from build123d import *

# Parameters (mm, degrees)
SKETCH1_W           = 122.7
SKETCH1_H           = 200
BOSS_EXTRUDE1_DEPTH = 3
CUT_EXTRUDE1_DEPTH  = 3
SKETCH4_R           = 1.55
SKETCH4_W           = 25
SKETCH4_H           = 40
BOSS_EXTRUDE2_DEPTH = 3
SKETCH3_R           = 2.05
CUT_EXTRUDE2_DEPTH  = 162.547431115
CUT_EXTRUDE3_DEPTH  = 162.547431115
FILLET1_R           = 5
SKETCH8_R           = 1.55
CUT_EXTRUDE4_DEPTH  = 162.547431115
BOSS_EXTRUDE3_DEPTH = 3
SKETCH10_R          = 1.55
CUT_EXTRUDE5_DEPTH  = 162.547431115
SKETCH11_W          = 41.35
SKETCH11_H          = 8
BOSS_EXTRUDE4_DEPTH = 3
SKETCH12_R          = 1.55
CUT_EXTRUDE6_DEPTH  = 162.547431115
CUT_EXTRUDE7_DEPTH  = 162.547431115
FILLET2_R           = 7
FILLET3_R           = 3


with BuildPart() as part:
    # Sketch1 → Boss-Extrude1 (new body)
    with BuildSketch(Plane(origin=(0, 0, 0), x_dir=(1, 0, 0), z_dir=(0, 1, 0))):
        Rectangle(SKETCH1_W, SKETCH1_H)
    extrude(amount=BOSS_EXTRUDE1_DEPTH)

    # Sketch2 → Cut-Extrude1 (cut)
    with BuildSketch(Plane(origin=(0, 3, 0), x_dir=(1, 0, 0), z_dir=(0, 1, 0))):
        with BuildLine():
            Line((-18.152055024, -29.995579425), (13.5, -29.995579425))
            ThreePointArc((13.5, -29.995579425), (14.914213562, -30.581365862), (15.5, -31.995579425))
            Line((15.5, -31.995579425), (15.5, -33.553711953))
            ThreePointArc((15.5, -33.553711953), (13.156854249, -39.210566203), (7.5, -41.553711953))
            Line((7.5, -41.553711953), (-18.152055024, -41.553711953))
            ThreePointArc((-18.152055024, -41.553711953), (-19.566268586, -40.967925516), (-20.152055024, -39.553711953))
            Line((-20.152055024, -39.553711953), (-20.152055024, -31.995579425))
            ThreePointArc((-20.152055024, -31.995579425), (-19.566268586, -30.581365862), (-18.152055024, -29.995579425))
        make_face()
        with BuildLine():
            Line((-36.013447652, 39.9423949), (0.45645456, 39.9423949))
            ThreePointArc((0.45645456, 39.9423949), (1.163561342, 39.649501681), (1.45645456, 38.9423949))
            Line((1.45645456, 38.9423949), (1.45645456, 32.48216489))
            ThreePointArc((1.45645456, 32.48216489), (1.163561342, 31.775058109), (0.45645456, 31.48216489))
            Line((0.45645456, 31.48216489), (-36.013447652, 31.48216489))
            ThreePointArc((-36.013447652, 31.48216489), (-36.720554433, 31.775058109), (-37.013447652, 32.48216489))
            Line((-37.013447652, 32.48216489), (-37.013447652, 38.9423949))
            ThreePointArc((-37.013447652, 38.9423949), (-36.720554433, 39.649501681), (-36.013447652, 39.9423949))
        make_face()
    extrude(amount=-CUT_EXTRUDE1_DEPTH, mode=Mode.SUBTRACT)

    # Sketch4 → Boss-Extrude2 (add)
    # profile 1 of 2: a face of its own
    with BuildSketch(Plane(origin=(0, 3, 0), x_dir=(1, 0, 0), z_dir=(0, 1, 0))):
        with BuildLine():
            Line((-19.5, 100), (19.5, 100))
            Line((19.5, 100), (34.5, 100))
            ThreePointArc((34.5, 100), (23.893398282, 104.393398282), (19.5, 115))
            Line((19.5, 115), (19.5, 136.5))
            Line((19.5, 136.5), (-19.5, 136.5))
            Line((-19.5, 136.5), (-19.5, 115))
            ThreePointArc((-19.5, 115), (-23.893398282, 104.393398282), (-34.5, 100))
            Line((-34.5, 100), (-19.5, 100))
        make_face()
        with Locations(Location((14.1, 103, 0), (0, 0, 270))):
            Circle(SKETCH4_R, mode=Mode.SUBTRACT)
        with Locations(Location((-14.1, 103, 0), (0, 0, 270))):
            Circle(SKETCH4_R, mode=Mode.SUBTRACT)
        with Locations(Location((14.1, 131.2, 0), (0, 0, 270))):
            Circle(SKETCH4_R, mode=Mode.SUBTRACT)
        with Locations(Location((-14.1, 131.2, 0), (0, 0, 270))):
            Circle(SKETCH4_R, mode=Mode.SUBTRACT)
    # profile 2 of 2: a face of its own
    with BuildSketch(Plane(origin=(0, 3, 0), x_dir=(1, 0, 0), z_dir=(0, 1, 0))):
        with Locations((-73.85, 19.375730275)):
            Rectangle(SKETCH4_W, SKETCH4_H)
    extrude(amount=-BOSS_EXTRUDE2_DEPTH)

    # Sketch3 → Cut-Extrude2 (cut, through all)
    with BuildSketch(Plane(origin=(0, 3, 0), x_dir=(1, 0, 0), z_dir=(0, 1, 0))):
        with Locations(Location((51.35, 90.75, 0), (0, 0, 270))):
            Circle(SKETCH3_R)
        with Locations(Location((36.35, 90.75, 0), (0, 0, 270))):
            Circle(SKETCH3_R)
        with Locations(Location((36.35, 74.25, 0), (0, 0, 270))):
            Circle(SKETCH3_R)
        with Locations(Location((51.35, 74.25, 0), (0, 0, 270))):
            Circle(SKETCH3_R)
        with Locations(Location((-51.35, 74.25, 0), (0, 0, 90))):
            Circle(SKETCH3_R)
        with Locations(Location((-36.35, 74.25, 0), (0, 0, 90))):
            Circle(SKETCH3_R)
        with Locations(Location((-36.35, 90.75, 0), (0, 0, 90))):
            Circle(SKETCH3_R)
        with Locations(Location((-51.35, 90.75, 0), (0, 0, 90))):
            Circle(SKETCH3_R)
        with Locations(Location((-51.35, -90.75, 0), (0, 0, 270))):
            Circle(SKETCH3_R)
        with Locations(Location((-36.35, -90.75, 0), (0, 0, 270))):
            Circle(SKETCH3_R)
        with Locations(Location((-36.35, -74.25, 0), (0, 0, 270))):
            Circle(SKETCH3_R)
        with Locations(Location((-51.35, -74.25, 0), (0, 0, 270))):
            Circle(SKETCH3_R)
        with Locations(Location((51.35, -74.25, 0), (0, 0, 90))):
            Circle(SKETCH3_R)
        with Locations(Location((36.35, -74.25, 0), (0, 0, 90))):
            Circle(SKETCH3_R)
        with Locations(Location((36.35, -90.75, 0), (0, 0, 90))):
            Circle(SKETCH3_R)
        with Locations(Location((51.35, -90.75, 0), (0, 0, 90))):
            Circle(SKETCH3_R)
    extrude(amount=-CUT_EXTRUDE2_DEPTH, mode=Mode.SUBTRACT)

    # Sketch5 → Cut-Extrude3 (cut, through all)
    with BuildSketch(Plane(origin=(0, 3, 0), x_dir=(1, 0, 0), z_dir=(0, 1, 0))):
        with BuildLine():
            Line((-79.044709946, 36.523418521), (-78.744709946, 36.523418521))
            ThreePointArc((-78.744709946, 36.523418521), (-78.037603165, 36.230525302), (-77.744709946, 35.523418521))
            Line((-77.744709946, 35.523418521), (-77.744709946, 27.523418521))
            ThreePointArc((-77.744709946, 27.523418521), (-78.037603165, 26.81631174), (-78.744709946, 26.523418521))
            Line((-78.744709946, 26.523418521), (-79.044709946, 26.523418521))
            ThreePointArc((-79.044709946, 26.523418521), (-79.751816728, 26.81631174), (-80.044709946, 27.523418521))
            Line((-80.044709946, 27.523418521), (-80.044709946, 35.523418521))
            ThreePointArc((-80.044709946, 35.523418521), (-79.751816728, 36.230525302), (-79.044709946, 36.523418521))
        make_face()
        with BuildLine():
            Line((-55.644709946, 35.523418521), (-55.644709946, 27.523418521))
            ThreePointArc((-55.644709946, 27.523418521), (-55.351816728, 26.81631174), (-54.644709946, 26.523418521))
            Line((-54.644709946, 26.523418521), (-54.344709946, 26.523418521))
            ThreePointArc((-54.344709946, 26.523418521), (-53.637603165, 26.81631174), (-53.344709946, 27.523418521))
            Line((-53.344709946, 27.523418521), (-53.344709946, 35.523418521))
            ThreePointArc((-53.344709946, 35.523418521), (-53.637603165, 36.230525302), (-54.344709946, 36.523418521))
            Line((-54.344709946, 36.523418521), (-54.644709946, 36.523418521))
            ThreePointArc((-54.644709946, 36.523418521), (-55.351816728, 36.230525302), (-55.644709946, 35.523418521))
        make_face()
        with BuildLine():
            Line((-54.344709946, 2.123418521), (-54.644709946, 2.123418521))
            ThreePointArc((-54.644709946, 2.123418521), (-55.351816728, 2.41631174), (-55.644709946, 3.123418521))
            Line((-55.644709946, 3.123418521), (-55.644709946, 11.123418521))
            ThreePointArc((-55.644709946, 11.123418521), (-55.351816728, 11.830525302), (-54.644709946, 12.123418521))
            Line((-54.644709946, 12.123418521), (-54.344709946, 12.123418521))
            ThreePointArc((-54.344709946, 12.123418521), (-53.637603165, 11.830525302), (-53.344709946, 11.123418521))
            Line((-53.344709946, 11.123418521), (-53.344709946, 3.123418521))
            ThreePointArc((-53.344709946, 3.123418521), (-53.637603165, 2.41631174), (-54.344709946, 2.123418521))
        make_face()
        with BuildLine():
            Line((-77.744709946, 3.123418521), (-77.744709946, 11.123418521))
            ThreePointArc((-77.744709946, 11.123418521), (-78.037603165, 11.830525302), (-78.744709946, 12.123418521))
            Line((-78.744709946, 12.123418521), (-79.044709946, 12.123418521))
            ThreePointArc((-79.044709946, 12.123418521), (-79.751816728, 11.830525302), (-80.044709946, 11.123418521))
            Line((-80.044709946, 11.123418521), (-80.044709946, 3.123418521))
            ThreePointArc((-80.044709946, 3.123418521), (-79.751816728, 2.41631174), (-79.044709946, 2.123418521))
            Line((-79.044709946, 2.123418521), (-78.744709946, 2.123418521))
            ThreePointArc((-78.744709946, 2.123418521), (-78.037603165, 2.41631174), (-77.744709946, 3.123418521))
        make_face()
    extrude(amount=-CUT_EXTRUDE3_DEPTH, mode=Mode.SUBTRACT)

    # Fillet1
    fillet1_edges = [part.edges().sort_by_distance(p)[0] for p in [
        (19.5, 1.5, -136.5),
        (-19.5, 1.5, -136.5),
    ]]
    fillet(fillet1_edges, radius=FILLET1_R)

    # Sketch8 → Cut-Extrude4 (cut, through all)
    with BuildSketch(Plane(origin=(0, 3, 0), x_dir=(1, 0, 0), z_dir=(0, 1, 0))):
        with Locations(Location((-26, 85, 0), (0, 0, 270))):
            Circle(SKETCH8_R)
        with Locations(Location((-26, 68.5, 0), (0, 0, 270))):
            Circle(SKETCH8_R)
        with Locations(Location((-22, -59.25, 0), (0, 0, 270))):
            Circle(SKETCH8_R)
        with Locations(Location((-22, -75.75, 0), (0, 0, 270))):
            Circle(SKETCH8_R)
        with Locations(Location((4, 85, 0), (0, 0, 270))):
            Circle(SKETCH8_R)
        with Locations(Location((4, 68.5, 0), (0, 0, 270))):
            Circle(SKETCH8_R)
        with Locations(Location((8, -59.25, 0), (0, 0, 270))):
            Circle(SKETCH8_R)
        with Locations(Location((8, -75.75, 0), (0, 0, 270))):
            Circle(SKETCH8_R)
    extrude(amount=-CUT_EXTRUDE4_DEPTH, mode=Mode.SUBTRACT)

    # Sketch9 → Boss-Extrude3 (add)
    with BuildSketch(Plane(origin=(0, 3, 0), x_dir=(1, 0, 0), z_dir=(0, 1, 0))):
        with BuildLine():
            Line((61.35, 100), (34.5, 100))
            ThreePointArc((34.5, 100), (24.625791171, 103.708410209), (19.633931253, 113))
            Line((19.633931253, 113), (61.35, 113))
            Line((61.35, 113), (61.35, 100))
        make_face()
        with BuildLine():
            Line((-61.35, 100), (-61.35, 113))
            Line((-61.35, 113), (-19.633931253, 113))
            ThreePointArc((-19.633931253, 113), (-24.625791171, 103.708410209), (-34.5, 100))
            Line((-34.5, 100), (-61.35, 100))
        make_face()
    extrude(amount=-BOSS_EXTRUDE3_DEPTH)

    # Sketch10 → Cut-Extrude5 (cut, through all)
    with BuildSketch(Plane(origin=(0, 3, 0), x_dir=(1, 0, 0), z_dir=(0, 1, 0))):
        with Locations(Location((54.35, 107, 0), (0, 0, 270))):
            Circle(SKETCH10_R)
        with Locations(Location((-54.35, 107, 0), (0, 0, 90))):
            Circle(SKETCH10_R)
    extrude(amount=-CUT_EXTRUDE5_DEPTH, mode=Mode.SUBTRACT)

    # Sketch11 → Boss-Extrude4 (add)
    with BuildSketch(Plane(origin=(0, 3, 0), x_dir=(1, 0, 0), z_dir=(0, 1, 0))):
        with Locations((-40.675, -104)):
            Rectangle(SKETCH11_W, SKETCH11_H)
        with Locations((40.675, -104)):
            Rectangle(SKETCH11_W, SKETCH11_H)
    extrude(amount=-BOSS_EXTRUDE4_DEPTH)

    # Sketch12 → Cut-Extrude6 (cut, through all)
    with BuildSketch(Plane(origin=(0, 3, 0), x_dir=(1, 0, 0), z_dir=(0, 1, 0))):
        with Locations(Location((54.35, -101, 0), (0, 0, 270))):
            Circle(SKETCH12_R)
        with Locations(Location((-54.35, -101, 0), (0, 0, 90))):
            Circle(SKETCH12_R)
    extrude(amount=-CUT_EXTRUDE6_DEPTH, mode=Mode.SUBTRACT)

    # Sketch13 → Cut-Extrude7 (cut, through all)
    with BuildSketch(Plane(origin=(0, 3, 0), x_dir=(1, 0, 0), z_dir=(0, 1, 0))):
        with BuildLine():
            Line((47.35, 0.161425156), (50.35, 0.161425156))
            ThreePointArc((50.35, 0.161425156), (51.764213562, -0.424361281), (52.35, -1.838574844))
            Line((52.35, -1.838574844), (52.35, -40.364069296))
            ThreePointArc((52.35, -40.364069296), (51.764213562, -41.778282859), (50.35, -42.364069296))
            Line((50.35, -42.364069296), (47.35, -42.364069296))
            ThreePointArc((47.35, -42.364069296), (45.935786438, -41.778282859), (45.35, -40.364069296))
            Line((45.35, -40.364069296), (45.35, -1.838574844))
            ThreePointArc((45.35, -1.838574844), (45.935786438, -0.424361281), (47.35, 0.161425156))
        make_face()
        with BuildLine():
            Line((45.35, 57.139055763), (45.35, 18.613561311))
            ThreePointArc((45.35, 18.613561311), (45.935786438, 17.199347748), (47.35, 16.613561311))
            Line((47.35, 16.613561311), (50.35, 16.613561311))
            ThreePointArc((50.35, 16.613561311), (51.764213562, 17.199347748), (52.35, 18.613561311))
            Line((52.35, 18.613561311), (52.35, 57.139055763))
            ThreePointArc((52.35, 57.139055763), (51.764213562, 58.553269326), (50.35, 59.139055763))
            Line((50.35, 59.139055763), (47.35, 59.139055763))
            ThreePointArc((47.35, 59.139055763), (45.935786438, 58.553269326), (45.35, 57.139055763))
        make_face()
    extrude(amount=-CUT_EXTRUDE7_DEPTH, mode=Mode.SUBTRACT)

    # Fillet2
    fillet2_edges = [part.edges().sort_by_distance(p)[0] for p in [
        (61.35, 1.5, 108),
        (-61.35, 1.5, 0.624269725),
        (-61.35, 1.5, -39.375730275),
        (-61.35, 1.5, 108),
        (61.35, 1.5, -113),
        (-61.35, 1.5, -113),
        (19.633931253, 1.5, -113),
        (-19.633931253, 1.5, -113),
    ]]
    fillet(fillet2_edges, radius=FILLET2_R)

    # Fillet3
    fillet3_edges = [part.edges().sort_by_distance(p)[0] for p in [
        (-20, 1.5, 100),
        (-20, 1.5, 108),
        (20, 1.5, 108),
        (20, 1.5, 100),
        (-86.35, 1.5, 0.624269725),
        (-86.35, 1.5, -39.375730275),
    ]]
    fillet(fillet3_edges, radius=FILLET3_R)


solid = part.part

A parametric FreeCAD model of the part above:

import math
import FreeCAD as App
import Part
import Sketcher

V = App.Vector
Q = App.Units.Quantity


def edges_at(feature, points):
    """Names of the edges that pass closest to the given points."""
    edges = feature.Shape.Edges
    near = lambda p: min(range(len(edges)), key=lambda i: edges[i].distToShape(Part.Vertex(*p))[0])
    return sorted({f"Edge{near(p) + 1}" for p in points})

doc = App.newDocument("Part")
body = doc.addObject("PartDesign::Body", "Body")

sketch1 = body.newObject("Sketcher::SketchObject", "Sketch")
sketch1.AttachmentSupport = (doc.getObject("XZ_Plane"), [""])
sketch1.MapMode = "FlatFace"
sketch1.addGeometry(Part.LineSegment(V(-61, -100, 0), V(-61, 100, 0)), False)
sketch1.addGeometry(Part.LineSegment(V(-61, 100, 0), V(61, 100, 0)), False)
sketch1.addGeometry(Part.LineSegment(V(61, 100, 0), V(61, -100, 0)), False)
sketch1.addGeometry(Part.LineSegment(V(61, -100, 0), V(-61, -100, 0)), False)
sketch1.addConstraint(Sketcher.Constraint("Coincident", 0, 2, 1, 1))
sketch1.addConstraint(Sketcher.Constraint("Coincident", 1, 2, 2, 1))
sketch1.addConstraint(Sketcher.Constraint("Coincident", 2, 2, 3, 1))
sketch1.addConstraint(Sketcher.Constraint("Coincident", 3, 2, 0, 1))
sketch1.addConstraint(Sketcher.Constraint("Vertical", 0))
sketch1.addConstraint(Sketcher.Constraint("Horizontal", 1))
sketch1.addConstraint(Sketcher.Constraint("Vertical", 2))
sketch1.addConstraint(Sketcher.Constraint("Horizontal", 3))
sketch1.addConstraint(Sketcher.Constraint("Symmetric", 0, 2, 2, 2, -1, 1))
sketch1.addConstraint(Sketcher.Constraint("DistanceY", 0, 1, 0, 2, Q("200 mm")))
sketch1.addConstraint(Sketcher.Constraint("DistanceX", 1, 1, 1, 2, Q("122.7 mm")))
pad1 = body.newObject("PartDesign::Pad", "Pad")
pad1.Profile = sketch1
pad1.Length = 3
pad1.Reversed = True

sketch2 = body.newObject("Sketcher::SketchObject", "Sketch001")
sketch2.AttachmentSupport = (doc.getObject("XZ_Plane"), [""])
sketch2.MapMode = "FlatFace"
sketch2.AttachmentOffset = App.Placement(V(0, 0, -3), App.Rotation())
sketch2.addGeometry(Part.LineSegment(V(13.5, 30, 0), V(-18.2, 30, 0)), False)
sketch2.addGeometry(Part.ArcOfCircle(Part.Circle(V(-18.2, 32, 0), V(0, 0, 1), 2), math.radians(180), math.radians(270)), False)
sketch2.addGeometry(Part.LineSegment(V(-20.2, 32, 0), V(-20.2, 39.6, 0)), False)
sketch2.addGeometry(Part.ArcOfCircle(Part.Circle(V(-18.2, 39.6, 0), V(0, 0, 1), 2), math.radians(90), math.radians(180)), False)
sketch2.addGeometry(Part.LineSegment(V(-18.2, 41.6, 0), V(7.5, 41.6, 0)), False)
sketch2.addGeometry(Part.ArcOfCircle(Part.Circle(V(7.5, 33.6, 0), V(0, 0, 1), 8), math.radians(0), math.radians(90)), False)
sketch2.addGeometry(Part.LineSegment(V(15.5, 33.6, 0), V(15.5, 32, 0)), False)
sketch2.addGeometry(Part.ArcOfCircle(Part.Circle(V(13.5, 32, 0), V(0, 0, 1), 2), math.radians(-90), math.radians(0)), False)
sketch2.addGeometry(Part.LineSegment(V(0.5, -39.9, 0), V(-36, -39.9, 0)), False)
sketch2.addGeometry(Part.ArcOfCircle(Part.Circle(V(-36, -38.9, 0), V(0, 0, 1), 1), math.radians(-180), math.radians(-90)), False)
sketch2.addGeometry(Part.LineSegment(V(-37, -38.9, 0), V(-37, -32.5, 0)), False)
sketch2.addGeometry(Part.ArcOfCircle(Part.Circle(V(-36, -32.5, 0), V(0, 0, 1), 1), math.radians(90), math.radians(180)), False)
sketch2.addGeometry(Part.LineSegment(V(-36, -31.5, 0), V(0.5, -31.5, 0)), False)
sketch2.addGeometry(Part.ArcOfCircle(Part.Circle(V(0.5, -32.5, 0), V(0, 0, 1), 1), math.radians(0), math.radians(90)), False)
sketch2.addGeometry(Part.LineSegment(V(1.5, -32.5, 0), V(1.5, -38.9, 0)), False)
sketch2.addGeometry(Part.ArcOfCircle(Part.Circle(V(0.5, -38.9, 0), V(0, 0, 1), 1), math.radians(-90), math.radians(0)), False)
sketch2.addConstraint(Sketcher.Constraint("Tangent", 0, 2, 1, 2))
sketch2.addConstraint(Sketcher.Constraint("Tangent", 1, 1, 2, 1))
sketch2.addConstraint(Sketcher.Constraint("Tangent", 2, 2, 3, 2))
sketch2.addConstraint(Sketcher.Constraint("Tangent", 3, 1, 4, 1))
sketch2.addConstraint(Sketcher.Constraint("Tangent", 4, 2, 5, 2))
sketch2.addConstraint(Sketcher.Constraint("Tangent", 5, 1, 6, 1))
sketch2.addConstraint(Sketcher.Constraint("Tangent", 6, 2, 7, 2))
sketch2.addConstraint(Sketcher.Constraint("Tangent", 7, 1, 0, 1))
sketch2.addConstraint(Sketcher.Constraint("Tangent", 8, 2, 9, 2))
sketch2.addConstraint(Sketcher.Constraint("Tangent", 9, 1, 10, 1))
sketch2.addConstraint(Sketcher.Constraint("Tangent", 10, 2, 11, 2))
sketch2.addConstraint(Sketcher.Constraint("Tangent", 11, 1, 12, 1))
sketch2.addConstraint(Sketcher.Constraint("Tangent", 12, 2, 13, 2))
sketch2.addConstraint(Sketcher.Constraint("Tangent", 13, 1, 14, 1))
sketch2.addConstraint(Sketcher.Constraint("Tangent", 14, 2, 15, 2))
sketch2.addConstraint(Sketcher.Constraint("Tangent", 15, 1, 8, 1))
sketch2.addConstraint(Sketcher.Constraint("Horizontal", 0))
sketch2.addConstraint(Sketcher.Constraint("Vertical", 2))
sketch2.addConstraint(Sketcher.Constraint("Horizontal", 4))
sketch2.addConstraint(Sketcher.Constraint("Vertical", 6))
sketch2.addConstraint(Sketcher.Constraint("Horizontal", 8))
sketch2.addConstraint(Sketcher.Constraint("Vertical", 10))
sketch2.addConstraint(Sketcher.Constraint("Horizontal", 12))
sketch2.addConstraint(Sketcher.Constraint("Vertical", 14))
sketch2.addConstraint(Sketcher.Constraint("Equal", 1, 3))
sketch2.addConstraint(Sketcher.Constraint("Equal", 3, 7))
sketch2.addConstraint(Sketcher.Constraint("Equal", 9, 11))
sketch2.addConstraint(Sketcher.Constraint("Equal", 11, 13))
sketch2.addConstraint(Sketcher.Constraint("Equal", 13, 15))
sketch2.addConstraint(Sketcher.Constraint("Radius", 1, Q("2 mm")))
sketch2.addConstraint(Sketcher.Constraint("Radius", 5, Q("8 mm")))
sketch2.addConstraint(Sketcher.Constraint("Radius", 9, Q("1 mm")))
sketch2.addConstraint(Sketcher.Constraint("DistanceX", -1, 1, 5, 3, Q("7.5 mm")))
sketch2.addConstraint(Sketcher.Constraint("DistanceY", 10, 1, 10, 2, Q("6.46023 mm")))
sketch2.addConstraint(Sketcher.Constraint("DistanceX", 0, 2, 0, 1, Q("31.652055 mm")))
sketch2.addConstraint(Sketcher.Constraint("DistanceX", 8, 2, 8, 1, Q("36.469902 mm")))
sketch2.addConstraint(Sketcher.Constraint("DistanceY", 2, 1, 2, 2, Q("7.558133 mm")))
sketch2.addConstraint(Sketcher.Constraint("DistanceY", -1, 1, 1, 3, Q("31.995579 mm")))
sketch2.addConstraint(Sketcher.Constraint("DistanceX", 1, 3, 13, 3, Q("18.60851 mm")))
sketch2.addConstraint(Sketcher.Constraint("DistanceY", 9, 3, -1, 1, Q("38.942395 mm")))
pocket1 = body.newObject("PartDesign::Pocket", "Pocket")
pocket1.Profile = sketch2
pocket1.Length = 3
pocket1.Reversed = True

sketch3 = body.newObject("Sketcher::SketchObject", "Sketch002")
sketch3.AttachmentSupport = (doc.getObject("XZ_Plane"), [""])
sketch3.MapMode = "FlatFace"
sketch3.AttachmentOffset = App.Placement(V(0, 0, -3), App.Rotation())
sketch3.addGeometry(Part.ArcOfCircle(Part.Circle(V(34.5, -115, 0), V(0, 0, 1), 15), math.radians(90), math.radians(180)), False)
sketch3.addGeometry(Part.LineSegment(V(19.5, -115, 0), V(19.5, -136.5, 0)), False)
sketch3.addGeometry(Part.LineSegment(V(19.5, -136.5, 0), V(-19.5, -136.5, 0)), False)
sketch3.addGeometry(Part.LineSegment(V(-19.5, -136.5, 0), V(-19.5, -115, 0)), False)
sketch3.addGeometry(Part.ArcOfCircle(Part.Circle(V(-34.5, -115, 0), V(0, 0, 1), 15), math.radians(0), math.radians(90)), False)
sketch3.addGeometry(Part.LineSegment(V(-34.5, -100, 0), V(34.5, -100, 0)), False)
sketch3.addGeometry(Part.Circle(V(-14.1, -103, 0), V(0, 0, 1), 1.6), False)
sketch3.addGeometry(Part.Circle(V(14.1, -103, 0), V(0, 0, 1), 1.6), False)
sketch3.addGeometry(Part.Circle(V(-14.1, -131.2, 0), V(0, 0, 1), 1.6), False)
sketch3.addGeometry(Part.Circle(V(14.1, -131.2, 0), V(0, 0, 1), 1.6), False)
sketch3.addGeometry(Part.LineSegment(V(-86.3, -39.4, 0), V(-86.3, 0.6, 0)), False)
sketch3.addGeometry(Part.LineSegment(V(-86.3, 0.6, 0), V(-61.4, 0.6, 0)), False)
sketch3.addGeometry(Part.LineSegment(V(-61.4, 0.6, 0), V(-61.4, -39.4, 0)), False)
sketch3.addGeometry(Part.LineSegment(V(-61.4, -39.4, 0), V(-86.3, -39.4, 0)), False)
sketch3.addConstraint(Sketcher.Constraint("Tangent", 0, 2, 1, 1))
sketch3.addConstraint(Sketcher.Constraint("Coincident", 1, 2, 2, 1))
sketch3.addConstraint(Sketcher.Constraint("Coincident", 2, 2, 3, 1))
sketch3.addConstraint(Sketcher.Constraint("Tangent", 3, 2, 4, 1))
sketch3.addConstraint(Sketcher.Constraint("Tangent", 4, 2, 5, 1))
sketch3.addConstraint(Sketcher.Constraint("Tangent", 5, 2, 0, 1))
sketch3.addConstraint(Sketcher.Constraint("Coincident", 10, 2, 11, 1))
sketch3.addConstraint(Sketcher.Constraint("Coincident", 11, 2, 12, 1))
sketch3.addConstraint(Sketcher.Constraint("Coincident", 12, 2, 13, 1))
sketch3.addConstraint(Sketcher.Constraint("Coincident", 13, 2, 10, 1))
sketch3.addConstraint(Sketcher.Constraint("Vertical", 1))
sketch3.addConstraint(Sketcher.Constraint("Horizontal", 2))
sketch3.addConstraint(Sketcher.Constraint("Vertical", 3))
sketch3.addConstraint(Sketcher.Constraint("Horizontal", 5))
sketch3.addConstraint(Sketcher.Constraint("Vertical", 10))
sketch3.addConstraint(Sketcher.Constraint("Horizontal", 11))
sketch3.addConstraint(Sketcher.Constraint("Vertical", 12))
sketch3.addConstraint(Sketcher.Constraint("Horizontal", 13))
sketch3.addConstraint(Sketcher.Constraint("Equal", 0, 4))
sketch3.addConstraint(Sketcher.Constraint("Equal", 6, 7))
sketch3.addConstraint(Sketcher.Constraint("Equal", 7, 8))
sketch3.addConstraint(Sketcher.Constraint("Equal", 8, 9))
sketch3.addConstraint(Sketcher.Constraint("Symmetric", 6, 3, 7, 3, -2))
sketch3.addConstraint(Sketcher.Constraint("Symmetric", 8, 3, 9, 3, -2))
sketch3.addConstraint(Sketcher.Constraint("Vertical", 6, 3, 8, 3))
sketch3.addConstraint(Sketcher.Constraint("Radius", 0, Q("15 mm")))
sketch3.addConstraint(Sketcher.Constraint("Diameter", 6, Q("3.1 mm")))
sketch3.addConstraint(Sketcher.Constraint("DistanceX", 2, 2, 2, 1, Q("39 mm")))
sketch3.addConstraint(Sketcher.Constraint("DistanceX", 11, 1, 11, 2, Q("25 mm")))
sketch3.addConstraint(Sketcher.Constraint("DistanceY", 10, 1, 10, 2, Q("40 mm")))
sketch3.addConstraint(Sketcher.Constraint("DistanceY", 1, 2, 1, 1, Q("21.5 mm")))
sketch3.addConstraint(Sketcher.Constraint("DistanceY", 0, 3, -1, 1, Q("115 mm")))
sketch3.addConstraint(Sketcher.Constraint("DistanceY", 6, 3, -1, 1, Q("103 mm")))
sketch3.addConstraint(Sketcher.Constraint("DistanceX", -1, 1, 0, 3, Q("34.5 mm")))
sketch3.addConstraint(Sketcher.Constraint("DistanceX", 6, 3, -1, 1, Q("14.1 mm")))
sketch3.addConstraint(Sketcher.Constraint("DistanceY", 8, 3, -1, 1, Q("131.2 mm")))
sketch3.addConstraint(Sketcher.Constraint("DistanceX", 10, 2, -1, 1, Q("86.35 mm")))
sketch3.addConstraint(Sketcher.Constraint("DistanceY", -1, 1, 10, 2, Q("0.62427 mm")))
pad2 = body.newObject("PartDesign::Pad", "Pad001")
pad2.Profile = sketch3
pad2.Length = 3

sketch4 = body.newObject("Sketcher::SketchObject", "Sketch003")
sketch4.AttachmentSupport = (doc.getObject("XZ_Plane"), [""])
sketch4.MapMode = "FlatFace"
sketch4.AttachmentOffset = App.Placement(V(0, 0, -3), App.Rotation())
sketch4.addGeometry(Part.Circle(V(51.4, -90.8, 0), V(0, 0, 1), 2), False)
sketch4.addGeometry(Part.Circle(V(36.4, -90.8, 0), V(0, 0, 1), 2), False)
sketch4.addGeometry(Part.Circle(V(36.4, -74.2, 0), V(0, 0, 1), 2), False)
sketch4.addGeometry(Part.Circle(V(51.4, -74.2, 0), V(0, 0, 1), 2), False)
sketch4.addGeometry(Part.Circle(V(-51.4, -74.2, 0), V(0, 0, 1), 2), False)
sketch4.addGeometry(Part.Circle(V(-36.4, -74.2, 0), V(0, 0, 1), 2), False)
sketch4.addGeometry(Part.Circle(V(-36.4, -90.8, 0), V(0, 0, 1), 2), False)
sketch4.addGeometry(Part.Circle(V(-51.4, -90.8, 0), V(0, 0, 1), 2), False)
sketch4.addGeometry(Part.Circle(V(-51.4, 90.8, 0), V(0, 0, 1), 2), False)
sketch4.addGeometry(Part.Circle(V(-36.4, 90.8, 0), V(0, 0, 1), 2), False)
sketch4.addGeometry(Part.Circle(V(-36.4, 74.2, 0), V(0, 0, 1), 2), False)
sketch4.addGeometry(Part.Circle(V(-51.4, 74.2, 0), V(0, 0, 1), 2), False)
sketch4.addGeometry(Part.Circle(V(51.4, 74.2, 0), V(0, 0, 1), 2), False)
sketch4.addGeometry(Part.Circle(V(36.4, 74.2, 0), V(0, 0, 1), 2), False)
sketch4.addGeometry(Part.Circle(V(36.4, 90.8, 0), V(0, 0, 1), 2), False)
sketch4.addGeometry(Part.Circle(V(51.4, 90.8, 0), V(0, 0, 1), 2), False)
sketch4.addConstraint(Sketcher.Constraint("Equal", 0, 1))
sketch4.addConstraint(Sketcher.Constraint("Equal", 1, 2))
sketch4.addConstraint(Sketcher.Constraint("Equal", 2, 3))
sketch4.addConstraint(Sketcher.Constraint("Equal", 3, 4))
sketch4.addConstraint(Sketcher.Constraint("Equal", 4, 5))
sketch4.addConstraint(Sketcher.Constraint("Equal", 5, 6))
sketch4.addConstraint(Sketcher.Constraint("Equal", 6, 7))
sketch4.addConstraint(Sketcher.Constraint("Equal", 7, 8))
sketch4.addConstraint(Sketcher.Constraint("Equal", 8, 9))
sketch4.addConstraint(Sketcher.Constraint("Equal", 9, 10))
sketch4.addConstraint(Sketcher.Constraint("Equal", 10, 11))
sketch4.addConstraint(Sketcher.Constraint("Equal", 11, 12))
sketch4.addConstraint(Sketcher.Constraint("Equal", 12, 13))
sketch4.addConstraint(Sketcher.Constraint("Equal", 13, 14))
sketch4.addConstraint(Sketcher.Constraint("Equal", 14, 15))
sketch4.addConstraint(Sketcher.Constraint("Symmetric", 0, 3, 8, 3, -1, 1))
sketch4.addConstraint(Sketcher.Constraint("Symmetric", 1, 3, 9, 3, -1, 1))
sketch4.addConstraint(Sketcher.Constraint("Symmetric", 2, 3, 10, 3, -1, 1))
sketch4.addConstraint(Sketcher.Constraint("Symmetric", 3, 3, 11, 3, -1, 1))
sketch4.addConstraint(Sketcher.Constraint("Symmetric", 4, 3, 12, 3, -1, 1))
sketch4.addConstraint(Sketcher.Constraint("Symmetric", 5, 3, 13, 3, -1, 1))
sketch4.addConstraint(Sketcher.Constraint("Symmetric", 6, 3, 14, 3, -1, 1))
sketch4.addConstraint(Sketcher.Constraint("Symmetric", 7, 3, 15, 3, -1, 1))
sketch4.addConstraint(Sketcher.Constraint("Symmetric", 3, 3, 4, 3, -2))
sketch4.addConstraint(Sketcher.Constraint("Symmetric", 2, 3, 5, 3, -2))
sketch4.addConstraint(Sketcher.Constraint("Symmetric", 1, 3, 6, 3, -2))
sketch4.addConstraint(Sketcher.Constraint("Symmetric", 0, 3, 7, 3, -2))
sketch4.addConstraint(Sketcher.Constraint("Horizontal", 0, 3, 1, 3))
sketch4.addConstraint(Sketcher.Constraint("Horizontal", 2, 3, 3, 3))
sketch4.addConstraint(Sketcher.Constraint("Vertical", 1, 3, 2, 3))
sketch4.addConstraint(Sketcher.Constraint("Vertical", 0, 3, 3, 3))
sketch4.addConstraint(Sketcher.Constraint("Diameter", 0, Q("4.1 mm")))
sketch4.addConstraint(Sketcher.Constraint("DistanceX", 1, 3, 0, 3, Q("15 mm")))
sketch4.addConstraint(Sketcher.Constraint("DistanceY", 4, 3, 8, 3, Q("165 mm")))
sketch4.addConstraint(Sketcher.Constraint("DistanceY", 1, 3, 2, 3, Q("16.5 mm")))
sketch4.addConstraint(Sketcher.Constraint("DistanceX", 4, 3, 2, 3, Q("87.7 mm")))
pocket2 = body.newObject("PartDesign::Pocket", "Pocket001")
pocket2.Profile = sketch4
pocket2.Type = "ThroughAll"
pocket2.Reversed = True

sketch5 = body.newObject("Sketcher::SketchObject", "Sketch004")
sketch5.AttachmentSupport = (doc.getObject("XZ_Plane"), [""])
sketch5.MapMode = "FlatFace"
sketch5.AttachmentOffset = App.Placement(V(0, 0, -3), App.Rotation())
sketch5.addGeometry(Part.LineSegment(V(-78.74, -36.52, 0), V(-79.04, -36.52, 0)), False)
sketch5.addGeometry(Part.ArcOfCircle(Part.Circle(V(-79.04, -35.52, 0), V(0, 0, 1), 1), math.radians(180), math.radians(270)), False)
sketch5.addGeometry(Part.LineSegment(V(-80.04, -35.52, 0), V(-80.04, -27.52, 0)), False)
sketch5.addGeometry(Part.ArcOfCircle(Part.Circle(V(-79.04, -27.52, 0), V(0, 0, 1), 1), math.radians(90), math.radians(180)), False)
sketch5.addGeometry(Part.LineSegment(V(-79.04, -26.52, 0), V(-78.74, -26.52, 0)), False)
sketch5.addGeometry(Part.ArcOfCircle(Part.Circle(V(-78.74, -27.52, 0), V(0, 0, 1), 1), math.radians(0), math.radians(90)), False)
sketch5.addGeometry(Part.LineSegment(V(-77.74, -27.52, 0), V(-77.74, -35.52, 0)), False)
sketch5.addGeometry(Part.ArcOfCircle(Part.Circle(V(-78.74, -35.52, 0), V(0, 0, 1), 1), math.radians(-90), math.radians(0)), False)
sketch5.addGeometry(Part.LineSegment(V(-55.64, -35.52, 0), V(-55.64, -27.52, 0)), False)
sketch5.addGeometry(Part.ArcOfCircle(Part.Circle(V(-54.64, -27.52, 0), V(0, 0, 1), 1), math.radians(90), math.radians(180)), False)
sketch5.addGeometry(Part.LineSegment(V(-54.64, -26.52, 0), V(-54.34, -26.52, 0)), False)
sketch5.addGeometry(Part.ArcOfCircle(Part.Circle(V(-54.34, -27.52, 0), V(0, 0, 1), 1), math.radians(0), math.radians(90)), False)
sketch5.addGeometry(Part.LineSegment(V(-53.34, -27.52, 0), V(-53.34, -35.52, 0)), False)
sketch5.addGeometry(Part.ArcOfCircle(Part.Circle(V(-54.34, -35.52, 0), V(0, 0, 1), 1), math.radians(-90), math.radians(0)), False)
sketch5.addGeometry(Part.LineSegment(V(-54.34, -36.52, 0), V(-54.64, -36.52, 0)), False)
sketch5.addGeometry(Part.ArcOfCircle(Part.Circle(V(-54.64, -35.52, 0), V(0, 0, 1), 1), math.radians(180), math.radians(270)), False)
sketch5.addGeometry(Part.LineSegment(V(-54.64, -2.12, 0), V(-54.34, -2.12, 0)), False)
sketch5.addGeometry(Part.ArcOfCircle(Part.Circle(V(-54.34, -3.12, 0), V(0, 0, 1), 1), math.radians(0), math.radians(90)), False)
sketch5.addGeometry(Part.LineSegment(V(-53.34, -3.12, 0), V(-53.34, -11.12, 0)), False)
sketch5.addGeometry(Part.ArcOfCircle(Part.Circle(V(-54.34, -11.12, 0), V(0, 0, 1), 1), math.radians(-90), math.radians(0)), False)
sketch5.addGeometry(Part.LineSegment(V(-54.34, -12.12, 0), V(-54.64, -12.12, 0)), False)
sketch5.addGeometry(Part.ArcOfCircle(Part.Circle(V(-54.64, -11.12, 0), V(0, 0, 1), 1), math.radians(180), math.radians(270)), False)
sketch5.addGeometry(Part.LineSegment(V(-55.64, -11.12, 0), V(-55.64, -3.12, 0)), False)
sketch5.addGeometry(Part.ArcOfCircle(Part.Circle(V(-54.64, -3.12, 0), V(0, 0, 1), 1), math.radians(90), math.radians(180)), False)
sketch5.addGeometry(Part.LineSegment(V(-77.74, -3.12, 0), V(-77.74, -11.12, 0)), False)
sketch5.addGeometry(Part.ArcOfCircle(Part.Circle(V(-78.74, -11.12, 0), V(0, 0, 1), 1), math.radians(-90), math.radians(0)), False)
sketch5.addGeometry(Part.LineSegment(V(-78.74, -12.12, 0), V(-79.04, -12.12, 0)), False)
sketch5.addGeometry(Part.ArcOfCircle(Part.Circle(V(-79.04, -11.12, 0), V(0, 0, 1), 1), math.radians(180), math.radians(270)), False)
sketch5.addGeometry(Part.LineSegment(V(-80.04, -11.12, 0), V(-80.04, -3.12, 0)), False)
sketch5.addGeometry(Part.ArcOfCircle(Part.Circle(V(-79.04, -3.12, 0), V(0, 0, 1), 1), math.radians(90), math.radians(180)), False)
sketch5.addGeometry(Part.LineSegment(V(-79.04, -2.12, 0), V(-78.74, -2.12, 0)), False)
sketch5.addGeometry(Part.ArcOfCircle(Part.Circle(V(-78.74, -3.12, 0), V(0, 0, 1), 1), math.radians(0), math.radians(90)), False)
sketch5.addConstraint(Sketcher.Constraint("Tangent", 0, 2, 1, 2))
sketch5.addConstraint(Sketcher.Constraint("Tangent", 1, 1, 2, 1))
sketch5.addConstraint(Sketcher.Constraint("Tangent", 2, 2, 3, 2))
sketch5.addConstraint(Sketcher.Constraint("Tangent", 3, 1, 4, 1))
sketch5.addConstraint(Sketcher.Constraint("Tangent", 4, 2, 5, 2))
sketch5.addConstraint(Sketcher.Constraint("Tangent", 5, 1, 6, 1))
sketch5.addConstraint(Sketcher.Constraint("Tangent", 6, 2, 7, 2))
sketch5.addConstraint(Sketcher.Constraint("Tangent", 7, 1, 0, 1))
sketch5.addConstraint(Sketcher.Constraint("Tangent", 8, 2, 9, 2))
sketch5.addConstraint(Sketcher.Constraint("Tangent", 9, 1, 10, 1))
sketch5.addConstraint(Sketcher.Constraint("Tangent", 10, 2, 11, 2))
sketch5.addConstraint(Sketcher.Constraint("Tangent", 11, 1, 12, 1))
sketch5.addConstraint(Sketcher.Constraint("Tangent", 12, 2, 13, 2))
sketch5.addConstraint(Sketcher.Constraint("Tangent", 13, 1, 14, 1))
sketch5.addConstraint(Sketcher.Constraint("Tangent", 14, 2, 15, 2))
sketch5.addConstraint(Sketcher.Constraint("Tangent", 15, 1, 8, 1))
sketch5.addConstraint(Sketcher.Constraint("Tangent", 16, 2, 17, 2))
sketch5.addConstraint(Sketcher.Constraint("Tangent", 17, 1, 18, 1))
sketch5.addConstraint(Sketcher.Constraint("Tangent", 18, 2, 19, 2))
sketch5.addConstraint(Sketcher.Constraint("Tangent", 19, 1, 20, 1))
sketch5.addConstraint(Sketcher.Constraint("Tangent", 20, 2, 21, 2))
sketch5.addConstraint(Sketcher.Constraint("Tangent", 21, 1, 22, 1))
sketch5.addConstraint(Sketcher.Constraint("Tangent", 22, 2, 23, 2))
sketch5.addConstraint(Sketcher.Constraint("Tangent", 23, 1, 16, 1))
sketch5.addConstraint(Sketcher.Constraint("Tangent", 24, 2, 25, 2))
sketch5.addConstraint(Sketcher.Constraint("Tangent", 25, 1, 26, 1))
sketch5.addConstraint(Sketcher.Constraint("Tangent", 26, 2, 27, 2))
sketch5.addConstraint(Sketcher.Constraint("Tangent", 27, 1, 28, 1))
sketch5.addConstraint(Sketcher.Constraint("Tangent", 28, 2, 29, 2))
sketch5.addConstraint(Sketcher.Constraint("Tangent", 29, 1, 30, 1))
sketch5.addConstraint(Sketcher.Constraint("Tangent", 30, 2, 31, 2))
sketch5.addConstraint(Sketcher.Constraint("Tangent", 31, 1, 24, 1))
sketch5.addConstraint(Sketcher.Constraint("Horizontal", 0))
sketch5.addConstraint(Sketcher.Constraint("Vertical", 2))
sketch5.addConstraint(Sketcher.Constraint("Horizontal", 4))
sketch5.addConstraint(Sketcher.Constraint("Vertical", 6))
sketch5.addConstraint(Sketcher.Constraint("Vertical", 8))
sketch5.addConstraint(Sketcher.Constraint("Horizontal", 10))
sketch5.addConstraint(Sketcher.Constraint("Vertical", 12))
sketch5.addConstraint(Sketcher.Constraint("Horizontal", 14))
sketch5.addConstraint(Sketcher.Constraint("Horizontal", 16))
sketch5.addConstraint(Sketcher.Constraint("Vertical", 18))
sketch5.addConstraint(Sketcher.Constraint("Horizontal", 20))
sketch5.addConstraint(Sketcher.Constraint("Vertical", 22))
sketch5.addConstraint(Sketcher.Constraint("Vertical", 24))
sketch5.addConstraint(Sketcher.Constraint("Horizontal", 26))
sketch5.addConstraint(Sketcher.Constraint("Vertical", 28))
sketch5.addConstraint(Sketcher.Constraint("Horizontal", 30))
sketch5.addConstraint(Sketcher.Constraint("Equal", 1, 3))
sketch5.addConstraint(Sketcher.Constraint("Equal", 3, 5))
sketch5.addConstraint(Sketcher.Constraint("Equal", 5, 7))
sketch5.addConstraint(Sketcher.Constraint("Equal", 7, 9))
sketch5.addConstraint(Sketcher.Constraint("Equal", 9, 11))
sketch5.addConstraint(Sketcher.Constraint("Equal", 11, 13))
sketch5.addConstraint(Sketcher.Constraint("Equal", 13, 15))
sketch5.addConstraint(Sketcher.Constraint("Equal", 15, 17))
sketch5.addConstraint(Sketcher.Constraint("Equal", 17, 19))
sketch5.addConstraint(Sketcher.Constraint("Equal", 19, 21))
sketch5.addConstraint(Sketcher.Constraint("Equal", 21, 23))
sketch5.addConstraint(Sketcher.Constraint("Equal", 23, 25))
sketch5.addConstraint(Sketcher.Constraint("Equal", 25, 27))
sketch5.addConstraint(Sketcher.Constraint("Equal", 27, 29))
sketch5.addConstraint(Sketcher.Constraint("Equal", 29, 31))
sketch5.addConstraint(Sketcher.Constraint("Horizontal", 5, 3, 9, 3))
sketch5.addConstraint(Sketcher.Constraint("Horizontal", 7, 3, 13, 3))
sketch5.addConstraint(Sketcher.Constraint("Horizontal", 21, 3, 25, 3))
sketch5.addConstraint(Sketcher.Constraint("Horizontal", 23, 3, 29, 3))
sketch5.addConstraint(Sketcher.Constraint("Vertical", 13, 3, 17, 3))
sketch5.addConstraint(Sketcher.Constraint("Vertical", 15, 3, 21, 3))
sketch5.addConstraint(Sketcher.Constraint("Vertical", 7, 3, 25, 3))
sketch5.addConstraint(Sketcher.Constraint("Vertical", 3, 3, 27, 3))
sketch5.addConstraint(Sketcher.Constraint("Equal", 4, 10))
sketch5.addConstraint(Sketcher.Constraint("Equal", 12, 18))
sketch5.addConstraint(Sketcher.Constraint("Radius", 1, Q("1 mm")))
sketch5.addConstraint(Sketcher.Constraint("DistanceY", 2, 1, 2, 2, Q("8 mm")))
sketch5.addConstraint(Sketcher.Constraint("DistanceX", 0, 2, 0, 1, Q("0.3 mm")))
sketch5.addConstraint(Sketcher.Constraint("DistanceX", 5, 3, 9, 3, Q("24.1 mm")))
sketch5.addConstraint(Sketcher.Constraint("DistanceY", 11, 3, 17, 3, Q("24.4 mm")))
sketch5.addConstraint(Sketcher.Constraint("DistanceX", 1, 3, -1, 1, Q("79.04471 mm")))
sketch5.addConstraint(Sketcher.Constraint("DistanceY", 1, 3, -1, 1, Q("35.523419 mm")))
pocket3 = body.newObject("PartDesign::Pocket", "Pocket002")
pocket3.Profile = sketch5
pocket3.Type = "ThroughAll"
pocket3.Reversed = True
doc.recompute()

fillet = body.newObject("PartDesign::Fillet", "Fillet")
fillet.Base = (pocket3, edges_at(pocket3, [(19.5, 1.5, -136.5), (-19.5, 1.5, -136.5)]))
fillet.Radius = 5

sketch6 = body.newObject("Sketcher::SketchObject", "Sketch005")
sketch6.AttachmentSupport = (doc.getObject("XZ_Plane"), [""])
sketch6.MapMode = "FlatFace"
sketch6.AttachmentOffset = App.Placement(V(0, 0, -3), App.Rotation())
sketch6.addGeometry(Part.Circle(V(-26, -85, 0), V(0, 0, 1), 1.6), False)
sketch6.addGeometry(Part.Circle(V(-26, -68.5, 0), V(0, 0, 1), 1.6), False)
sketch6.addGeometry(Part.Circle(V(-22, 59.2, 0), V(0, 0, 1), 1.6), False)
sketch6.addGeometry(Part.Circle(V(-22, 75.8, 0), V(0, 0, 1), 1.6), False)
sketch6.addGeometry(Part.Circle(V(4, -85, 0), V(0, 0, 1), 1.6), False)
sketch6.addGeometry(Part.Circle(V(4, -68.5, 0), V(0, 0, 1), 1.6), False)
sketch6.addGeometry(Part.Circle(V(8, 59.2, 0), V(0, 0, 1), 1.6), False)
sketch6.addGeometry(Part.Circle(V(8, 75.8, 0), V(0, 0, 1), 1.6), False)
sketch6.addConstraint(Sketcher.Constraint("Equal", 0, 1))
sketch6.addConstraint(Sketcher.Constraint("Equal", 1, 2))
sketch6.addConstraint(Sketcher.Constraint("Equal", 2, 3))
sketch6.addConstraint(Sketcher.Constraint("Equal", 3, 4))
sketch6.addConstraint(Sketcher.Constraint("Equal", 4, 5))
sketch6.addConstraint(Sketcher.Constraint("Equal", 5, 6))
sketch6.addConstraint(Sketcher.Constraint("Equal", 6, 7))
sketch6.addConstraint(Sketcher.Constraint("Horizontal", 0, 3, 4, 3))
sketch6.addConstraint(Sketcher.Constraint("Horizontal", 1, 3, 5, 3))
sketch6.addConstraint(Sketcher.Constraint("Horizontal", 2, 3, 6, 3))
sketch6.addConstraint(Sketcher.Constraint("Horizontal", 3, 3, 7, 3))
sketch6.addConstraint(Sketcher.Constraint("Vertical", 0, 3, 1, 3))
sketch6.addConstraint(Sketcher.Constraint("Vertical", 2, 3, 3, 3))
sketch6.addConstraint(Sketcher.Constraint("Vertical", 4, 3, 5, 3))
sketch6.addConstraint(Sketcher.Constraint("Vertical", 6, 3, 7, 3))
sketch6.addConstraint(Sketcher.Constraint("Diameter", 0, Q("3.1 mm")))
sketch6.addConstraint(Sketcher.Constraint("DistanceX", 0, 3, -1, 1, Q("26 mm")))
sketch6.addConstraint(Sketcher.Constraint("DistanceY", 0, 3, -1, 1, Q("85 mm")))
sketch6.addConstraint(Sketcher.Constraint("DistanceX", 2, 3, -1, 1, Q("22 mm")))
sketch6.addConstraint(Sketcher.Constraint("DistanceX", -1, 1, 4, 3, Q("4 mm")))
sketch6.addConstraint(Sketcher.Constraint("DistanceX", -1, 1, 6, 3, Q("8 mm")))
sketch6.addConstraint(Sketcher.Constraint("DistanceY", 1, 3, -1, 1, Q("68.5 mm")))
sketch6.addConstraint(Sketcher.Constraint("DistanceY", 2, 3, 3, 3, Q("16.5 mm")))
sketch6.addConstraint(Sketcher.Constraint("DistanceY", -1, 1, 2, 3, Q("59.25 mm")))
pocket4 = body.newObject("PartDesign::Pocket", "Pocket003")
pocket4.Profile = sketch6
pocket4.Type = "ThroughAll"
pocket4.Reversed = True

sketch7 = body.newObject("Sketcher::SketchObject", "Sketch006")
sketch7.AttachmentSupport = (doc.getObject("XZ_Plane"), [""])
sketch7.MapMode = "FlatFace"
sketch7.AttachmentOffset = App.Placement(V(0, 0, -3), App.Rotation())
sketch7.addGeometry(Part.LineSegment(V(34, -100, 0), V(61, -100, 0)), False)
sketch7.addGeometry(Part.LineSegment(V(61, -100, 0), V(61, -113, 0)), False)
sketch7.addGeometry(Part.LineSegment(V(61, -113, 0), V(20, -113, 0)), False)
sketch7.addGeometry(Part.ArcOfCircle(Part.Circle(V(34, -115, 0), V(0, 0, 1), 15), math.radians(90), math.radians(172)), False)
sketch7.addGeometry(Part.LineSegment(V(-61, -113, 0), V(-61, -100, 0)), False)
sketch7.addGeometry(Part.LineSegment(V(-61, -100, 0), V(-34, -100, 0)), False)
sketch7.addGeometry(Part.ArcOfCircle(Part.Circle(V(-34, -115, 0), V(0, 0, 1), 15), math.radians(8), math.radians(90)), False)
sketch7.addGeometry(Part.LineSegment(V(-20, -113, 0), V(-61, -113, 0)), False)
sketch7.addConstraint(Sketcher.Constraint("Coincident", 0, 2, 1, 1))
sketch7.addConstraint(Sketcher.Constraint("Coincident", 1, 2, 2, 1))
sketch7.addConstraint(Sketcher.Constraint("Coincident", 2, 2, 3, 2))
sketch7.addConstraint(Sketcher.Constraint("Tangent", 3, 1, 0, 1))
sketch7.addConstraint(Sketcher.Constraint("Coincident", 4, 2, 5, 1))
sketch7.addConstraint(Sketcher.Constraint("Tangent", 5, 2, 6, 2))
sketch7.addConstraint(Sketcher.Constraint("Coincident", 6, 1, 7, 1))
sketch7.addConstraint(Sketcher.Constraint("Coincident", 7, 2, 4, 1))
sketch7.addConstraint(Sketcher.Constraint("Horizontal", 0))
sketch7.addConstraint(Sketcher.Constraint("Vertical", 1))
sketch7.addConstraint(Sketcher.Constraint("Horizontal", 2))
sketch7.addConstraint(Sketcher.Constraint("Vertical", 4))
sketch7.addConstraint(Sketcher.Constraint("Horizontal", 5))
sketch7.addConstraint(Sketcher.Constraint("Horizontal", 7))
sketch7.addConstraint(Sketcher.Constraint("Equal", 3, 6))
sketch7.addConstraint(Sketcher.Constraint("Symmetric", 3, 3, 6, 3, -2))
sketch7.addConstraint(Sketcher.Constraint("Symmetric", 1, 2, 7, 2, -2))
sketch7.addConstraint(Sketcher.Constraint("Radius", 3, Q("15 mm")))
sketch7.addConstraint(Sketcher.Constraint("DistanceY", 1, 2, 1, 1, Q("13 mm")))
sketch7.addConstraint(Sketcher.Constraint("DistanceY", 3, 3, -1, 1, Q("115 mm")))
sketch7.addConstraint(Sketcher.Constraint("DistanceX", 6, 3, 3, 3, Q("69 mm")))
sketch7.addConstraint(Sketcher.Constraint("DistanceX", 0, 1, 0, 2, Q("26.85 mm")))
pad3 = body.newObject("PartDesign::Pad", "Pad002")
pad3.Profile = sketch7
pad3.Length = 3

sketch8 = body.newObject("Sketcher::SketchObject", "Sketch007")
sketch8.AttachmentSupport = (doc.getObject("XZ_Plane"), [""])
sketch8.MapMode = "FlatFace"
sketch8.AttachmentOffset = App.Placement(V(0, 0, -3), App.Rotation())
sketch8.addGeometry(Part.Circle(V(54.4, -107, 0), V(0, 0, 1), 1.6), False)
sketch8.addGeometry(Part.Circle(V(-54.4, -107, 0), V(0, 0, 1), 1.6), False)
sketch8.addConstraint(Sketcher.Constraint("Equal", 0, 1))
sketch8.addConstraint(Sketcher.Constraint("Symmetric", 0, 3, 1, 3, -2))
sketch8.addConstraint(Sketcher.Constraint("Diameter", 0, Q("3.1 mm")))
sketch8.addConstraint(Sketcher.Constraint("DistanceY", 0, 3, -1, 1, Q("107 mm")))
sketch8.addConstraint(Sketcher.Constraint("DistanceX", 1, 3, 0, 3, Q("108.7 mm")))
pocket5 = body.newObject("PartDesign::Pocket", "Pocket004")
pocket5.Profile = sketch8
pocket5.Type = "ThroughAll"
pocket5.Reversed = True

sketch9 = body.newObject("Sketcher::SketchObject", "Sketch008")
sketch9.AttachmentSupport = (doc.getObject("XZ_Plane"), [""])
sketch9.MapMode = "FlatFace"
sketch9.AttachmentOffset = App.Placement(V(0, 0, -3), App.Rotation())
sketch9.addGeometry(Part.LineSegment(V(-61, 100, 0), V(-61, 108, 0)), False)
sketch9.addGeometry(Part.LineSegment(V(-61, 108, 0), V(-20, 108, 0)), False)
sketch9.addGeometry(Part.LineSegment(V(-20, 108, 0), V(-20, 100, 0)), False)
sketch9.addGeometry(Part.LineSegment(V(-20, 100, 0), V(-61, 100, 0)), False)
sketch9.addGeometry(Part.LineSegment(V(20, 100, 0), V(20, 108, 0)), False)
sketch9.addGeometry(Part.LineSegment(V(20, 108, 0), V(61, 108, 0)), False)
sketch9.addGeometry(Part.LineSegment(V(61, 108, 0), V(61, 100, 0)), False)
sketch9.addGeometry(Part.LineSegment(V(61, 100, 0), V(20, 100, 0)), False)
sketch9.addConstraint(Sketcher.Constraint("Coincident", 0, 2, 1, 1))
sketch9.addConstraint(Sketcher.Constraint("Coincident", 1, 2, 2, 1))
sketch9.addConstraint(Sketcher.Constraint("Coincident", 2, 2, 3, 1))
sketch9.addConstraint(Sketcher.Constraint("Coincident", 3, 2, 0, 1))
sketch9.addConstraint(Sketcher.Constraint("Coincident", 4, 2, 5, 1))
sketch9.addConstraint(Sketcher.Constraint("Coincident", 5, 2, 6, 1))
sketch9.addConstraint(Sketcher.Constraint("Coincident", 6, 2, 7, 1))
sketch9.addConstraint(Sketcher.Constraint("Coincident", 7, 2, 4, 1))
sketch9.addConstraint(Sketcher.Constraint("Vertical", 0))
sketch9.addConstraint(Sketcher.Constraint("Horizontal", 1))
sketch9.addConstraint(Sketcher.Constraint("Vertical", 2))
sketch9.addConstraint(Sketcher.Constraint("Horizontal", 3))
sketch9.addConstraint(Sketcher.Constraint("Vertical", 4))
sketch9.addConstraint(Sketcher.Constraint("Horizontal", 5))
sketch9.addConstraint(Sketcher.Constraint("Vertical", 6))
sketch9.addConstraint(Sketcher.Constraint("Horizontal", 7))
sketch9.addConstraint(Sketcher.Constraint("Symmetric", 1, 2, 4, 2, -2))
sketch9.addConstraint(Sketcher.Constraint("Symmetric", 3, 2, 6, 2, -2))
sketch9.addConstraint(Sketcher.Constraint("DistanceY", 0, 1, 0, 2, Q("8 mm")))
sketch9.addConstraint(Sketcher.Constraint("DistanceY", -1, 1, 0, 2, Q("108 mm")))
sketch9.addConstraint(Sketcher.Constraint("DistanceX", 1, 2, -1, 1, Q("20 mm")))
sketch9.addConstraint(Sketcher.Constraint("DistanceX", 1, 1, 1, 2, Q("41.35 mm")))
pad4 = body.newObject("PartDesign::Pad", "Pad003")
pad4.Profile = sketch9
pad4.Length = 3

sketch10 = body.newObject("Sketcher::SketchObject", "Sketch009")
sketch10.AttachmentSupport = (doc.getObject("XZ_Plane"), [""])
sketch10.MapMode = "FlatFace"
sketch10.AttachmentOffset = App.Placement(V(0, 0, -3), App.Rotation())
sketch10.addGeometry(Part.Circle(V(54.4, 101, 0), V(0, 0, 1), 1.6), False)
sketch10.addGeometry(Part.Circle(V(-54.4, 101, 0), V(0, 0, 1), 1.6), False)
sketch10.addConstraint(Sketcher.Constraint("Equal", 0, 1))
sketch10.addConstraint(Sketcher.Constraint("Symmetric", 0, 3, 1, 3, -2))
sketch10.addConstraint(Sketcher.Constraint("Diameter", 0, Q("3.1 mm")))
sketch10.addConstraint(Sketcher.Constraint("DistanceY", -1, 1, 0, 3, Q("101 mm")))
sketch10.addConstraint(Sketcher.Constraint("DistanceX", 1, 3, 0, 3, Q("108.7 mm")))
pocket6 = body.newObject("PartDesign::Pocket", "Pocket005")
pocket6.Profile = sketch10
pocket6.Type = "ThroughAll"
pocket6.Reversed = True

sketch11 = body.newObject("Sketcher::SketchObject", "Sketch010")
sketch11.AttachmentSupport = (doc.getObject("XZ_Plane"), [""])
sketch11.MapMode = "FlatFace"
sketch11.AttachmentOffset = App.Placement(V(0, 0, -3), App.Rotation())
sketch11.addGeometry(Part.LineSegment(V(50.4, -0.2, 0), V(47.4, -0.2, 0)), False)
sketch11.addGeometry(Part.ArcOfCircle(Part.Circle(V(47.4, 1.8, 0), V(0, 0, 1), 2), math.radians(180), math.radians(270)), False)
sketch11.addGeometry(Part.LineSegment(V(45.4, 1.8, 0), V(45.4, 40.4, 0)), False)
sketch11.addGeometry(Part.ArcOfCircle(Part.Circle(V(47.4, 40.4, 0), V(0, 0, 1), 2), math.radians(90), math.radians(180)), False)
sketch11.addGeometry(Part.LineSegment(V(47.4, 42.4, 0), V(50.4, 42.4, 0)), False)
sketch11.addGeometry(Part.ArcOfCircle(Part.Circle(V(50.4, 40.4, 0), V(0, 0, 1), 2), math.radians(0), math.radians(90)), False)
sketch11.addGeometry(Part.LineSegment(V(52.4, 40.4, 0), V(52.4, 1.8, 0)), False)
sketch11.addGeometry(Part.ArcOfCircle(Part.Circle(V(50.4, 1.8, 0), V(0, 0, 1), 2), math.radians(-90), math.radians(0)), False)
sketch11.addGeometry(Part.LineSegment(V(45.4, -57.1, 0), V(45.4, -18.6, 0)), False)
sketch11.addGeometry(Part.ArcOfCircle(Part.Circle(V(47.4, -18.6, 0), V(0, 0, 1), 2), math.radians(90), math.radians(180)), False)
sketch11.addGeometry(Part.LineSegment(V(47.4, -16.6, 0), V(50.4, -16.6, 0)), False)
sketch11.addGeometry(Part.ArcOfCircle(Part.Circle(V(50.4, -18.6, 0), V(0, 0, 1), 2), math.radians(0), math.radians(90)), False)
sketch11.addGeometry(Part.LineSegment(V(52.4, -18.6, 0), V(52.4, -57.1, 0)), False)
sketch11.addGeometry(Part.ArcOfCircle(Part.Circle(V(50.4, -57.1, 0), V(0, 0, 1), 2), math.radians(-90), math.radians(0)), False)
sketch11.addGeometry(Part.LineSegment(V(50.4, -59.1, 0), V(47.4, -59.1, 0)), False)
sketch11.addGeometry(Part.ArcOfCircle(Part.Circle(V(47.4, -57.1, 0), V(0, 0, 1), 2), math.radians(180), math.radians(270)), False)
sketch11.addConstraint(Sketcher.Constraint("Tangent", 0, 2, 1, 2))
sketch11.addConstraint(Sketcher.Constraint("Tangent", 1, 1, 2, 1))
sketch11.addConstraint(Sketcher.Constraint("Tangent", 2, 2, 3, 2))
sketch11.addConstraint(Sketcher.Constraint("Tangent", 3, 1, 4, 1))
sketch11.addConstraint(Sketcher.Constraint("Tangent", 4, 2, 5, 2))
sketch11.addConstraint(Sketcher.Constraint("Tangent", 5, 1, 6, 1))
sketch11.addConstraint(Sketcher.Constraint("Tangent", 6, 2, 7, 2))
sketch11.addConstraint(Sketcher.Constraint("Tangent", 7, 1, 0, 1))
sketch11.addConstraint(Sketcher.Constraint("Tangent", 8, 2, 9, 2))
sketch11.addConstraint(Sketcher.Constraint("Tangent", 9, 1, 10, 1))
sketch11.addConstraint(Sketcher.Constraint("Tangent", 10, 2, 11, 2))
sketch11.addConstraint(Sketcher.Constraint("Tangent", 11, 1, 12, 1))
sketch11.addConstraint(Sketcher.Constraint("Tangent", 12, 2, 13, 2))
sketch11.addConstraint(Sketcher.Constraint("Tangent", 13, 1, 14, 1))
sketch11.addConstraint(Sketcher.Constraint("Tangent", 14, 2, 15, 2))
sketch11.addConstraint(Sketcher.Constraint("Tangent", 15, 1, 8, 1))
sketch11.addConstraint(Sketcher.Constraint("Horizontal", 0))
sketch11.addConstraint(Sketcher.Constraint("Vertical", 2))
sketch11.addConstraint(Sketcher.Constraint("Horizontal", 4))
sketch11.addConstraint(Sketcher.Constraint("Vertical", 6))
sketch11.addConstraint(Sketcher.Constraint("Vertical", 8))
sketch11.addConstraint(Sketcher.Constraint("Horizontal", 10))
sketch11.addConstraint(Sketcher.Constraint("Vertical", 12))
sketch11.addConstraint(Sketcher.Constraint("Horizontal", 14))
sketch11.addConstraint(Sketcher.Constraint("Equal", 1, 3))
sketch11.addConstraint(Sketcher.Constraint("Equal", 3, 5))
sketch11.addConstraint(Sketcher.Constraint("Equal", 5, 7))
sketch11.addConstraint(Sketcher.Constraint("Equal", 7, 9))
sketch11.addConstraint(Sketcher.Constraint("Equal", 9, 11))
sketch11.addConstraint(Sketcher.Constraint("Equal", 11, 13))
sketch11.addConstraint(Sketcher.Constraint("Equal", 13, 15))
sketch11.addConstraint(Sketcher.Constraint("Vertical", 3, 3, 9, 3))
sketch11.addConstraint(Sketcher.Constraint("Vertical", 7, 3, 11, 3))
sketch11.addConstraint(Sketcher.Constraint("Equal", 6, 8))
sketch11.addConstraint(Sketcher.Constraint("Radius", 1, Q("2 mm")))
sketch11.addConstraint(Sketcher.Constraint("DistanceX", 0, 2, 0, 1, Q("3 mm")))
sketch11.addConstraint(Sketcher.Constraint("DistanceX", -1, 1, 1, 3, Q("47.35 mm")))
sketch11.addConstraint(Sketcher.Constraint("DistanceY", 2, 1, 2, 2, Q("38.525494 mm")))
sketch11.addConstraint(Sketcher.Constraint("DistanceY", -1, 1, 3, 3, Q("40.364069 mm")))
sketch11.addConstraint(Sketcher.Constraint("DistanceY", 9, 3, -1, 1, Q("18.613561 mm")))
pocket7 = body.newObject("PartDesign::Pocket", "Pocket006")
pocket7.Profile = sketch11
pocket7.Type = "ThroughAll"
pocket7.Reversed = True
doc.recompute()

fillet2 = body.newObject("PartDesign::Fillet", "Fillet001")
fillet2.Base = (pocket7, edges_at(pocket7, [
    (61.35, 1.5, 108),
    (-61.35, 1.5, 0.624),
    (-61.35, 1.5, -39.376),
    (-61.35, 1.5, 108),
    (61.35, 1.5, -113),
    (-61.35, 1.5, -113),
    (19.634, 1.5, -113),
    (-19.634, 1.5, -113),
]))
fillet2.Radius = 7
doc.recompute()

fillet3 = body.newObject("PartDesign::Fillet", "Fillet002")
fillet3.Base = (fillet2, edges_at(fillet2, [
    (-20, 1.5, 100),
    (-20, 1.5, 108),
    (20, 1.5, 108),
    (20, 1.5, 100),
    (-86.35, 1.5, 0.624),
    (-86.35, 1.5, -39.376),
]))
fillet3.Radius = 3

doc.recompute()
